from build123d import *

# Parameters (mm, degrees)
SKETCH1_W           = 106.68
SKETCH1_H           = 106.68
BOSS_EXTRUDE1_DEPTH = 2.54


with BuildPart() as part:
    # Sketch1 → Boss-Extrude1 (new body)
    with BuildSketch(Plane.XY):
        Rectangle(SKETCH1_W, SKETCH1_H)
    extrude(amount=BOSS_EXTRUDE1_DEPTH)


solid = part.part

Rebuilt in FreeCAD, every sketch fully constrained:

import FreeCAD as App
import Part
import Sketcher
Q = App.Units.Quantity

doc = App.newDocument("Part")
body = doc.addObject("PartDesign::Body", "Body")

# Sketch on XY plane
sketch1 = body.newObject("Sketcher::SketchObject", "Sketch")
sketch1.AttachmentSupport = (doc.getObject("XY_Plane"), [""])
sketch1.MapMode = "FlatFace"
sketch1.addGeometry([
    Part.LineSegment(App.Vector(-53.34, 53.34, 0), App.Vector(-53.34, -53.34, 0)),
    Part.LineSegment(App.Vector(-53.34, -53.34, 0), App.Vector(53.34, -53.34, 0)),
    Part.LineSegment(App.Vector(53.34, -53.34, 0), App.Vector(53.34, 53.34, 0)),
    Part.LineSegment(App.Vector(53.34, 53.34, 0), App.Vector(-53.34, 53.34, 0)),
], False)
sketch1.addConstraint([
    Sketcher.Constraint("Coincident", 0, 2, 1, 1),
    Sketcher.Constraint("Coincident", 1, 2, 2, 1),
    Sketcher.Constraint("Coincident", 2, 2, 3, 1),
    Sketcher.Constraint("Coincident", 3, 2, 0, 1),
    Sketcher.Constraint("Vertical", 0),
    Sketcher.Constraint("Horizontal", 1),
    Sketcher.Constraint("Vertical", 2),
    Sketcher.Constraint("Horizontal", 3),
    Sketcher.Constraint("Symmetric", 0, 2, 2, 2, -1, 1),
    Sketcher.Constraint("Equal", 3, 0),
    Sketcher.Constraint("DistanceX", 1, 1, 1, 2, Q("4.2 in")),
])
pad1 = body.newObject("PartDesign::Pad", "Pad")
pad1.Profile = sketch1
pad1.Length = Q("0.1 in")

doc.recompute()
